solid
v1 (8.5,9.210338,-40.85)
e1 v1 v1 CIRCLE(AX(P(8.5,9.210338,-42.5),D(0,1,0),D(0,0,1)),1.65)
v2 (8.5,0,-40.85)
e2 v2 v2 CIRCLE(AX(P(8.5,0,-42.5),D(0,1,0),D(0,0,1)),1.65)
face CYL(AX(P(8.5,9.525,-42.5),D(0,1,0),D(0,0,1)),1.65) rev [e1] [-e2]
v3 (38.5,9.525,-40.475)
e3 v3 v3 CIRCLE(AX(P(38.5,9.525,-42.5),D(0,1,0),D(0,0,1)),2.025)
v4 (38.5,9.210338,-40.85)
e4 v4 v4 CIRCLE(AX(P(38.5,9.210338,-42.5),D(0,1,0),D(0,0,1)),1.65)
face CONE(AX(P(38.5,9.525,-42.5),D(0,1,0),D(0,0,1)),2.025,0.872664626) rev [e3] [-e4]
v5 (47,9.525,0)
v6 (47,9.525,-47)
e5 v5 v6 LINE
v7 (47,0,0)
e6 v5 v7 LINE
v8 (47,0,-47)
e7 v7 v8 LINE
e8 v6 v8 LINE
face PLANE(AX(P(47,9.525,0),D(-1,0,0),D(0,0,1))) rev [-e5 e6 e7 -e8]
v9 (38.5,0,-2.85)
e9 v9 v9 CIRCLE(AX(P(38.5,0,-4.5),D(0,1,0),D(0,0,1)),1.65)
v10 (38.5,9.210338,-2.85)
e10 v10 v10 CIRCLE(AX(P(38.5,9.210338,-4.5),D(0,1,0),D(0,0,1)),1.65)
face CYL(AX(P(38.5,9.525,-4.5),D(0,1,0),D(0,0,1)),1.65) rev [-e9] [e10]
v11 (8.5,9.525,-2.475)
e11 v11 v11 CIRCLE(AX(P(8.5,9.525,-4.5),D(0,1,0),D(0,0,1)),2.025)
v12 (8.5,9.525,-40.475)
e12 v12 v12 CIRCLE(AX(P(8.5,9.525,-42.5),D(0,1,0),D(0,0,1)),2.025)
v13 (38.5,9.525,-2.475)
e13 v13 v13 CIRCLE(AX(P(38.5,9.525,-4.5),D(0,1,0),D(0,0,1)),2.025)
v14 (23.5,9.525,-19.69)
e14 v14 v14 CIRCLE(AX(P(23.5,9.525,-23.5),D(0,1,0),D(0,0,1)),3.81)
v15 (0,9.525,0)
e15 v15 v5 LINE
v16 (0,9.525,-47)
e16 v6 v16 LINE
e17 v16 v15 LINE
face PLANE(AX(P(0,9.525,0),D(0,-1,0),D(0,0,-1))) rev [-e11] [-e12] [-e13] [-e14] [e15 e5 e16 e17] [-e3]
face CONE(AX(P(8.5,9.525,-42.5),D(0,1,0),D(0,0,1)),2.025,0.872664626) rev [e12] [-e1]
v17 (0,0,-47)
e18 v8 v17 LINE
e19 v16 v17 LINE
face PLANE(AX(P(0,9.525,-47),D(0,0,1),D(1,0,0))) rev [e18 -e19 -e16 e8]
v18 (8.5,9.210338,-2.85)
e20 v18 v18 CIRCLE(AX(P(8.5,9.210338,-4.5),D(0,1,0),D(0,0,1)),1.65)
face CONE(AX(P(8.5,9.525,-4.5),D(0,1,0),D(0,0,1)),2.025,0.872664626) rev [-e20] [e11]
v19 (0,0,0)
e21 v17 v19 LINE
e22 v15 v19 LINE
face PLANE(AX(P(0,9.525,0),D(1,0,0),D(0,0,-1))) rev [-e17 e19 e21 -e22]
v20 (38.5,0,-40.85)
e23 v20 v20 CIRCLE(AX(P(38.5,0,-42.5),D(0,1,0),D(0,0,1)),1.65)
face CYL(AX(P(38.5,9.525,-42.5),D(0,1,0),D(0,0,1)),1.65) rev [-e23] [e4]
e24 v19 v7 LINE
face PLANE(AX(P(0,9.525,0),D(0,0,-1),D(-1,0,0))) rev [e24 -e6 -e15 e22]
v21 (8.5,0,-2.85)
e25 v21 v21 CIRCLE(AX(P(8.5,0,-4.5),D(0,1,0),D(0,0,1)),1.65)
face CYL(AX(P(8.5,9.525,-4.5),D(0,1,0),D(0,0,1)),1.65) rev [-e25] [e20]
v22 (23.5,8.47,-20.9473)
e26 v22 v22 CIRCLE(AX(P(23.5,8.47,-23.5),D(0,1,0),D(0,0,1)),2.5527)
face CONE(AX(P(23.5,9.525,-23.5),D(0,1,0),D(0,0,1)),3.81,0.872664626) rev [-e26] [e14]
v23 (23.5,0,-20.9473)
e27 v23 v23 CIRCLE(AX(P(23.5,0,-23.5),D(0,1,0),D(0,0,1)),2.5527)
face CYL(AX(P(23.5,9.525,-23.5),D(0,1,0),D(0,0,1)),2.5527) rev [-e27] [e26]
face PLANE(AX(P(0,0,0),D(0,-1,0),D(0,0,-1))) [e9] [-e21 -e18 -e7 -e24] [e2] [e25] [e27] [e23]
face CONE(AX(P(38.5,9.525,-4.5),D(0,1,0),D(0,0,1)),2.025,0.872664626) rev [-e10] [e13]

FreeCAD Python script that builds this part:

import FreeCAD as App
import Part
import Sketcher
from FreeCAD import Vector


def add_polygon(sketch, points):
    """Adds a closed chain of lines whose ends are joined by coincident constraints."""
    first, n = sketch.GeometryCount, len(points)
    for a, b in zip(points, points[1:] + points[:1]):
        sketch.addGeometry(Part.LineSegment(App.Vector(*a, 0), App.Vector(*b, 0)), False)
    for i in range(n):
        sketch.addConstraint(Sketcher.Constraint("Coincident", first + i, 2, first + (i + 1) % n, 1))

doc = App.newDocument("Part")
body = doc.addObject("PartDesign::Body", "Body")

sketch1 = doc.addObject("Sketcher::SketchObject", "Sketch")
body.addObject(sketch1)
sketch1.AttachmentSupport = (doc.XZ_Plane, [""])
sketch1.MapMode = "FlatFace"
add_polygon(sketch1, [(0, -47), (0, 0), (47, 0), (47, -47)])
sketch1.addConstraint(Sketcher.Constraint("Vertical", 0))
sketch1.addConstraint(Sketcher.Constraint("Horizontal", 1))
sketch1.addConstraint(Sketcher.Constraint("Vertical", 2))
sketch1.addConstraint(Sketcher.Constraint("Horizontal", 3))
sketch1.addConstraint(Sketcher.Constraint("Coincident", 0, 2, -1, 1))
sketch1.addConstraint(Sketcher.Constraint("Equal", 3, 0))
sketch1.addConstraint(Sketcher.Constraint("DistanceX", 1, 1, 1, 2, 47.0))
pad1 = doc.addObject("PartDesign::Pad", "Pad")
body.addObject(pad1)
pad1.Profile = sketch1
pad1.Length = 9.525
pad1.Reversed = True

sketch2 = doc.addObject("Sketcher::SketchObject", "Sketch001")
body.addObject(sketch2)
sketch2.AttachmentSupport = (doc.XZ_Plane, [""])
sketch2.MapMode = "FlatFace"
sketch2.AttachmentOffset = App.Placement(Vector(0, 0, -9.525), App.Rotation())
sketch2.addGeometry(Part.Circle(Vector(38.5, -42.5, 0), Vector(0, 0, 1), 1.6), False)
sketch2.addGeometry(Part.Circle(Vector(8.5, -42.5, 0), Vector(0, 0, 1), 1.6), False)
sketch2.addGeometry(Part.Circle(Vector(8.5, -4.5, 0), Vector(0, 0, 1), 1.6), False)
sketch2.addGeometry(Part.Circle(Vector(38.5, -4.5, 0), Vector(0, 0, 1), 1.6), False)
sketch2.addConstraint(Sketcher.Constraint("Equal", 0, 1))
sketch2.addConstraint(Sketcher.Constraint("Equal", 1, 2))
sketch2.addConstraint(Sketcher.Constraint("Equal", 2, 3))
sketch2.addConstraint(Sketcher.Constraint("Horizontal", 0, 3, 1, 3))
sketch2.addConstraint(Sketcher.Constraint("Horizontal", 2, 3, 3, 3))
sketch2.addConstraint(Sketcher.Constraint("Vertical", 1, 3, 2, 3))
sketch2.addConstraint(Sketcher.Constraint("Vertical", 0, 3, 3, 3))
sketch2.addConstraint(Sketcher.Constraint("Diameter", 0, 3.3))
sketch2.addConstraint(Sketcher.Constraint("DistanceX", 1, 3, 0, 3, 30.0))
sketch2.addConstraint(Sketcher.Constraint("DistanceY", 1, 3, 2, 3, 38.0))
sketch2.addConstraint(Sketcher.Constraint("DistanceX", -1, 1, 0, 3, 38.5))
sketch2.addConstraint(Sketcher.Constraint("DistanceY", 0, 3, -1, 1, 42.5))
doc.recompute()
hole = doc.addObject("PartDesign::Hole", "Hole")
body.addObject(hole)
hole.Profile = sketch2
hole.ThreadType = "None"
hole.Diameter = 3.3
hole.DepthType = "ThroughAll"
hole.HoleCutType = "Countersink"
hole.HoleCutDiameter = 4.05
hole.HoleCutCountersinkAngle = 100
hole.Reversed = True

sketch3 = doc.addObject("Sketcher::SketchObject", "Sketch002")
body.addObject(sketch3)
sketch3.AttachmentSupport = (doc.XZ_Plane, [""])
sketch3.MapMode = "FlatFace"
sketch3.AttachmentOffset = App.Placement(Vector(0, 0, -9.525), App.Rotation())
sketch3.addGeometry(Part.Circle(Vector(23.5, -23.5, 0), Vector(0, 0, 1), 2.6), False)
sketch3.addConstraint(Sketcher.Constraint("Diameter", 0, 5.1054))
sketch3.addConstraint(Sketcher.Constraint("DistanceX", -1, 1, 0, 3, 23.5))
sketch3.addConstraint(Sketcher.Constraint("DistanceY", 0, 3, -1, 1, 23.5))
doc.recompute()
hole2 = doc.addObject("PartDesign::Hole", "Hole001")
body.addObject(hole2)
hole2.Profile = sketch3
hole2.ThreadType = "None"
hole2.Diameter = 5.1054
hole2.DepthType = "ThroughAll"
hole2.HoleCutType = "Countersink"
hole2.HoleCutDiameter = 7.62
hole2.HoleCutCountersinkAngle = 100
hole2.Reversed = True

doc.recompute()
